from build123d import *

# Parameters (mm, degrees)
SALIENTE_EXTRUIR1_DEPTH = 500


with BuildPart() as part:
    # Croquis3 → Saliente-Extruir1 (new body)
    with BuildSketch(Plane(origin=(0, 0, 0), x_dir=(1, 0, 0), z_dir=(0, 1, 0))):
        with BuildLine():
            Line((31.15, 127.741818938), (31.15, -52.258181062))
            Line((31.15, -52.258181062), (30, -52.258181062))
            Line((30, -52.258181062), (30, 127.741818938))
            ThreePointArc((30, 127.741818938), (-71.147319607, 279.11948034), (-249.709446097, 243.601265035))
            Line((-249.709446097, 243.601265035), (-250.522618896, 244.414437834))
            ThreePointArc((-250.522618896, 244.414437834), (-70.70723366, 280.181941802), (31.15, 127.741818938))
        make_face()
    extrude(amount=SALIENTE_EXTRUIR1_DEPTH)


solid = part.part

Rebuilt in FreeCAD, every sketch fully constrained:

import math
import FreeCAD as App
import Part
import Sketcher
from FreeCAD import Vector
Q = App.Units.Quantity

doc = App.newDocument("Part")
params = doc.addObject("Spreadsheet::Sheet", "Params")
for row, (alias, value) in enumerate([
    ("sketch1_radius", "165 mm"),
    ("sketch1_height", "180 mm"),
    ("sketch1_radius2", "163.85 mm"),
    ("pad1_length", "500 mm"),
], start=1):
    params.set(f"A{row}", alias)
    params.set(f"B{row}", "=" + value)
    params.setAlias(f"B{row}", alias)

body = doc.addObject("PartDesign::Body", "Body")

sketch1 = body.newObject("Sketcher::SketchObject", "Sketch")
sketch1.AttachmentSupport = (doc.getObject("XZ_Plane"), [""])
sketch1.MapMode = "FlatFace"
sketch1.addGeometry([
    Part.LineSegment(Vector(31.1, 52.3, 0), Vector(31.1, -127.7, 0)),
    Part.ArcOfCircle(Part.Circle(Vector(-133.9, -127.7, 0), Vector(0, 0, 1), 165), math.radians(-135), math.radians(0)),
    Part.LineSegment(Vector(-250.5, -244.4, 0), Vector(-249.7, -243.6, 0)),
    Part.ArcOfCircle(Part.Circle(Vector(-133.8, -127.7, 0), Vector(0, 0, 1), 163.8), math.radians(-135), math.radians(0)),
    Part.LineSegment(Vector(30, -127.7, 0), Vector(30, 52.3, 0)),
    Part.LineSegment(Vector(30, 52.3, 0), Vector(31.1, 52.3, 0)),
], False)
sketch1.addConstraint([
    Sketcher.Constraint("Tangent", 0, 2, 1, 2),
    Sketcher.Constraint("Coincident", 1, 1, 2, 1),
    Sketcher.Constraint("Coincident", 2, 2, 3, 1),
    Sketcher.Constraint("Tangent", 3, 2, 4, 1),
    Sketcher.Constraint("Coincident", 4, 2, 5, 1),
    Sketcher.Constraint("Coincident", 5, 2, 0, 1),
    Sketcher.Constraint("Vertical", 0),
    Sketcher.Constraint("Vertical", 4),
    Sketcher.Constraint("Horizontal", 5),
    Sketcher.Constraint("Coincident", 3, 3, 1, 3),
    Sketcher.Constraint("Radius", 1, Q("165 mm")),
    Sketcher.Constraint("DistanceY", 0, 2, 0, 1, Q("180 mm")),
    Sketcher.Constraint("Angle", 2, Q("45 deg")),
    Sketcher.Constraint("Radius", 3, Q("163.85 mm")),
    Sketcher.Constraint("DistanceX", -1, 1, 3, 2, Q("30 mm")),
    Sketcher.Constraint("DistanceY", 1, 3, -1, 1, Q("127.741819 mm")),
    Sketcher.Constraint("DistanceX", 1, 1, -1, 1, Q("250.522619 mm")),
])
sketch1.setExpression("Constraints[10]", "Params.sketch1_radius")
sketch1.setExpression("Constraints[11]", "Params.sketch1_height")
sketch1.setExpression("Constraints[13]", "Params.sketch1_radius2")
pad1 = body.newObject("PartDesign::Pad", "Pad")
pad1.Profile = sketch1
pad1.setExpression("Length", "Params.pad1_length")
pad1.Reversed = True

doc.recompute()
